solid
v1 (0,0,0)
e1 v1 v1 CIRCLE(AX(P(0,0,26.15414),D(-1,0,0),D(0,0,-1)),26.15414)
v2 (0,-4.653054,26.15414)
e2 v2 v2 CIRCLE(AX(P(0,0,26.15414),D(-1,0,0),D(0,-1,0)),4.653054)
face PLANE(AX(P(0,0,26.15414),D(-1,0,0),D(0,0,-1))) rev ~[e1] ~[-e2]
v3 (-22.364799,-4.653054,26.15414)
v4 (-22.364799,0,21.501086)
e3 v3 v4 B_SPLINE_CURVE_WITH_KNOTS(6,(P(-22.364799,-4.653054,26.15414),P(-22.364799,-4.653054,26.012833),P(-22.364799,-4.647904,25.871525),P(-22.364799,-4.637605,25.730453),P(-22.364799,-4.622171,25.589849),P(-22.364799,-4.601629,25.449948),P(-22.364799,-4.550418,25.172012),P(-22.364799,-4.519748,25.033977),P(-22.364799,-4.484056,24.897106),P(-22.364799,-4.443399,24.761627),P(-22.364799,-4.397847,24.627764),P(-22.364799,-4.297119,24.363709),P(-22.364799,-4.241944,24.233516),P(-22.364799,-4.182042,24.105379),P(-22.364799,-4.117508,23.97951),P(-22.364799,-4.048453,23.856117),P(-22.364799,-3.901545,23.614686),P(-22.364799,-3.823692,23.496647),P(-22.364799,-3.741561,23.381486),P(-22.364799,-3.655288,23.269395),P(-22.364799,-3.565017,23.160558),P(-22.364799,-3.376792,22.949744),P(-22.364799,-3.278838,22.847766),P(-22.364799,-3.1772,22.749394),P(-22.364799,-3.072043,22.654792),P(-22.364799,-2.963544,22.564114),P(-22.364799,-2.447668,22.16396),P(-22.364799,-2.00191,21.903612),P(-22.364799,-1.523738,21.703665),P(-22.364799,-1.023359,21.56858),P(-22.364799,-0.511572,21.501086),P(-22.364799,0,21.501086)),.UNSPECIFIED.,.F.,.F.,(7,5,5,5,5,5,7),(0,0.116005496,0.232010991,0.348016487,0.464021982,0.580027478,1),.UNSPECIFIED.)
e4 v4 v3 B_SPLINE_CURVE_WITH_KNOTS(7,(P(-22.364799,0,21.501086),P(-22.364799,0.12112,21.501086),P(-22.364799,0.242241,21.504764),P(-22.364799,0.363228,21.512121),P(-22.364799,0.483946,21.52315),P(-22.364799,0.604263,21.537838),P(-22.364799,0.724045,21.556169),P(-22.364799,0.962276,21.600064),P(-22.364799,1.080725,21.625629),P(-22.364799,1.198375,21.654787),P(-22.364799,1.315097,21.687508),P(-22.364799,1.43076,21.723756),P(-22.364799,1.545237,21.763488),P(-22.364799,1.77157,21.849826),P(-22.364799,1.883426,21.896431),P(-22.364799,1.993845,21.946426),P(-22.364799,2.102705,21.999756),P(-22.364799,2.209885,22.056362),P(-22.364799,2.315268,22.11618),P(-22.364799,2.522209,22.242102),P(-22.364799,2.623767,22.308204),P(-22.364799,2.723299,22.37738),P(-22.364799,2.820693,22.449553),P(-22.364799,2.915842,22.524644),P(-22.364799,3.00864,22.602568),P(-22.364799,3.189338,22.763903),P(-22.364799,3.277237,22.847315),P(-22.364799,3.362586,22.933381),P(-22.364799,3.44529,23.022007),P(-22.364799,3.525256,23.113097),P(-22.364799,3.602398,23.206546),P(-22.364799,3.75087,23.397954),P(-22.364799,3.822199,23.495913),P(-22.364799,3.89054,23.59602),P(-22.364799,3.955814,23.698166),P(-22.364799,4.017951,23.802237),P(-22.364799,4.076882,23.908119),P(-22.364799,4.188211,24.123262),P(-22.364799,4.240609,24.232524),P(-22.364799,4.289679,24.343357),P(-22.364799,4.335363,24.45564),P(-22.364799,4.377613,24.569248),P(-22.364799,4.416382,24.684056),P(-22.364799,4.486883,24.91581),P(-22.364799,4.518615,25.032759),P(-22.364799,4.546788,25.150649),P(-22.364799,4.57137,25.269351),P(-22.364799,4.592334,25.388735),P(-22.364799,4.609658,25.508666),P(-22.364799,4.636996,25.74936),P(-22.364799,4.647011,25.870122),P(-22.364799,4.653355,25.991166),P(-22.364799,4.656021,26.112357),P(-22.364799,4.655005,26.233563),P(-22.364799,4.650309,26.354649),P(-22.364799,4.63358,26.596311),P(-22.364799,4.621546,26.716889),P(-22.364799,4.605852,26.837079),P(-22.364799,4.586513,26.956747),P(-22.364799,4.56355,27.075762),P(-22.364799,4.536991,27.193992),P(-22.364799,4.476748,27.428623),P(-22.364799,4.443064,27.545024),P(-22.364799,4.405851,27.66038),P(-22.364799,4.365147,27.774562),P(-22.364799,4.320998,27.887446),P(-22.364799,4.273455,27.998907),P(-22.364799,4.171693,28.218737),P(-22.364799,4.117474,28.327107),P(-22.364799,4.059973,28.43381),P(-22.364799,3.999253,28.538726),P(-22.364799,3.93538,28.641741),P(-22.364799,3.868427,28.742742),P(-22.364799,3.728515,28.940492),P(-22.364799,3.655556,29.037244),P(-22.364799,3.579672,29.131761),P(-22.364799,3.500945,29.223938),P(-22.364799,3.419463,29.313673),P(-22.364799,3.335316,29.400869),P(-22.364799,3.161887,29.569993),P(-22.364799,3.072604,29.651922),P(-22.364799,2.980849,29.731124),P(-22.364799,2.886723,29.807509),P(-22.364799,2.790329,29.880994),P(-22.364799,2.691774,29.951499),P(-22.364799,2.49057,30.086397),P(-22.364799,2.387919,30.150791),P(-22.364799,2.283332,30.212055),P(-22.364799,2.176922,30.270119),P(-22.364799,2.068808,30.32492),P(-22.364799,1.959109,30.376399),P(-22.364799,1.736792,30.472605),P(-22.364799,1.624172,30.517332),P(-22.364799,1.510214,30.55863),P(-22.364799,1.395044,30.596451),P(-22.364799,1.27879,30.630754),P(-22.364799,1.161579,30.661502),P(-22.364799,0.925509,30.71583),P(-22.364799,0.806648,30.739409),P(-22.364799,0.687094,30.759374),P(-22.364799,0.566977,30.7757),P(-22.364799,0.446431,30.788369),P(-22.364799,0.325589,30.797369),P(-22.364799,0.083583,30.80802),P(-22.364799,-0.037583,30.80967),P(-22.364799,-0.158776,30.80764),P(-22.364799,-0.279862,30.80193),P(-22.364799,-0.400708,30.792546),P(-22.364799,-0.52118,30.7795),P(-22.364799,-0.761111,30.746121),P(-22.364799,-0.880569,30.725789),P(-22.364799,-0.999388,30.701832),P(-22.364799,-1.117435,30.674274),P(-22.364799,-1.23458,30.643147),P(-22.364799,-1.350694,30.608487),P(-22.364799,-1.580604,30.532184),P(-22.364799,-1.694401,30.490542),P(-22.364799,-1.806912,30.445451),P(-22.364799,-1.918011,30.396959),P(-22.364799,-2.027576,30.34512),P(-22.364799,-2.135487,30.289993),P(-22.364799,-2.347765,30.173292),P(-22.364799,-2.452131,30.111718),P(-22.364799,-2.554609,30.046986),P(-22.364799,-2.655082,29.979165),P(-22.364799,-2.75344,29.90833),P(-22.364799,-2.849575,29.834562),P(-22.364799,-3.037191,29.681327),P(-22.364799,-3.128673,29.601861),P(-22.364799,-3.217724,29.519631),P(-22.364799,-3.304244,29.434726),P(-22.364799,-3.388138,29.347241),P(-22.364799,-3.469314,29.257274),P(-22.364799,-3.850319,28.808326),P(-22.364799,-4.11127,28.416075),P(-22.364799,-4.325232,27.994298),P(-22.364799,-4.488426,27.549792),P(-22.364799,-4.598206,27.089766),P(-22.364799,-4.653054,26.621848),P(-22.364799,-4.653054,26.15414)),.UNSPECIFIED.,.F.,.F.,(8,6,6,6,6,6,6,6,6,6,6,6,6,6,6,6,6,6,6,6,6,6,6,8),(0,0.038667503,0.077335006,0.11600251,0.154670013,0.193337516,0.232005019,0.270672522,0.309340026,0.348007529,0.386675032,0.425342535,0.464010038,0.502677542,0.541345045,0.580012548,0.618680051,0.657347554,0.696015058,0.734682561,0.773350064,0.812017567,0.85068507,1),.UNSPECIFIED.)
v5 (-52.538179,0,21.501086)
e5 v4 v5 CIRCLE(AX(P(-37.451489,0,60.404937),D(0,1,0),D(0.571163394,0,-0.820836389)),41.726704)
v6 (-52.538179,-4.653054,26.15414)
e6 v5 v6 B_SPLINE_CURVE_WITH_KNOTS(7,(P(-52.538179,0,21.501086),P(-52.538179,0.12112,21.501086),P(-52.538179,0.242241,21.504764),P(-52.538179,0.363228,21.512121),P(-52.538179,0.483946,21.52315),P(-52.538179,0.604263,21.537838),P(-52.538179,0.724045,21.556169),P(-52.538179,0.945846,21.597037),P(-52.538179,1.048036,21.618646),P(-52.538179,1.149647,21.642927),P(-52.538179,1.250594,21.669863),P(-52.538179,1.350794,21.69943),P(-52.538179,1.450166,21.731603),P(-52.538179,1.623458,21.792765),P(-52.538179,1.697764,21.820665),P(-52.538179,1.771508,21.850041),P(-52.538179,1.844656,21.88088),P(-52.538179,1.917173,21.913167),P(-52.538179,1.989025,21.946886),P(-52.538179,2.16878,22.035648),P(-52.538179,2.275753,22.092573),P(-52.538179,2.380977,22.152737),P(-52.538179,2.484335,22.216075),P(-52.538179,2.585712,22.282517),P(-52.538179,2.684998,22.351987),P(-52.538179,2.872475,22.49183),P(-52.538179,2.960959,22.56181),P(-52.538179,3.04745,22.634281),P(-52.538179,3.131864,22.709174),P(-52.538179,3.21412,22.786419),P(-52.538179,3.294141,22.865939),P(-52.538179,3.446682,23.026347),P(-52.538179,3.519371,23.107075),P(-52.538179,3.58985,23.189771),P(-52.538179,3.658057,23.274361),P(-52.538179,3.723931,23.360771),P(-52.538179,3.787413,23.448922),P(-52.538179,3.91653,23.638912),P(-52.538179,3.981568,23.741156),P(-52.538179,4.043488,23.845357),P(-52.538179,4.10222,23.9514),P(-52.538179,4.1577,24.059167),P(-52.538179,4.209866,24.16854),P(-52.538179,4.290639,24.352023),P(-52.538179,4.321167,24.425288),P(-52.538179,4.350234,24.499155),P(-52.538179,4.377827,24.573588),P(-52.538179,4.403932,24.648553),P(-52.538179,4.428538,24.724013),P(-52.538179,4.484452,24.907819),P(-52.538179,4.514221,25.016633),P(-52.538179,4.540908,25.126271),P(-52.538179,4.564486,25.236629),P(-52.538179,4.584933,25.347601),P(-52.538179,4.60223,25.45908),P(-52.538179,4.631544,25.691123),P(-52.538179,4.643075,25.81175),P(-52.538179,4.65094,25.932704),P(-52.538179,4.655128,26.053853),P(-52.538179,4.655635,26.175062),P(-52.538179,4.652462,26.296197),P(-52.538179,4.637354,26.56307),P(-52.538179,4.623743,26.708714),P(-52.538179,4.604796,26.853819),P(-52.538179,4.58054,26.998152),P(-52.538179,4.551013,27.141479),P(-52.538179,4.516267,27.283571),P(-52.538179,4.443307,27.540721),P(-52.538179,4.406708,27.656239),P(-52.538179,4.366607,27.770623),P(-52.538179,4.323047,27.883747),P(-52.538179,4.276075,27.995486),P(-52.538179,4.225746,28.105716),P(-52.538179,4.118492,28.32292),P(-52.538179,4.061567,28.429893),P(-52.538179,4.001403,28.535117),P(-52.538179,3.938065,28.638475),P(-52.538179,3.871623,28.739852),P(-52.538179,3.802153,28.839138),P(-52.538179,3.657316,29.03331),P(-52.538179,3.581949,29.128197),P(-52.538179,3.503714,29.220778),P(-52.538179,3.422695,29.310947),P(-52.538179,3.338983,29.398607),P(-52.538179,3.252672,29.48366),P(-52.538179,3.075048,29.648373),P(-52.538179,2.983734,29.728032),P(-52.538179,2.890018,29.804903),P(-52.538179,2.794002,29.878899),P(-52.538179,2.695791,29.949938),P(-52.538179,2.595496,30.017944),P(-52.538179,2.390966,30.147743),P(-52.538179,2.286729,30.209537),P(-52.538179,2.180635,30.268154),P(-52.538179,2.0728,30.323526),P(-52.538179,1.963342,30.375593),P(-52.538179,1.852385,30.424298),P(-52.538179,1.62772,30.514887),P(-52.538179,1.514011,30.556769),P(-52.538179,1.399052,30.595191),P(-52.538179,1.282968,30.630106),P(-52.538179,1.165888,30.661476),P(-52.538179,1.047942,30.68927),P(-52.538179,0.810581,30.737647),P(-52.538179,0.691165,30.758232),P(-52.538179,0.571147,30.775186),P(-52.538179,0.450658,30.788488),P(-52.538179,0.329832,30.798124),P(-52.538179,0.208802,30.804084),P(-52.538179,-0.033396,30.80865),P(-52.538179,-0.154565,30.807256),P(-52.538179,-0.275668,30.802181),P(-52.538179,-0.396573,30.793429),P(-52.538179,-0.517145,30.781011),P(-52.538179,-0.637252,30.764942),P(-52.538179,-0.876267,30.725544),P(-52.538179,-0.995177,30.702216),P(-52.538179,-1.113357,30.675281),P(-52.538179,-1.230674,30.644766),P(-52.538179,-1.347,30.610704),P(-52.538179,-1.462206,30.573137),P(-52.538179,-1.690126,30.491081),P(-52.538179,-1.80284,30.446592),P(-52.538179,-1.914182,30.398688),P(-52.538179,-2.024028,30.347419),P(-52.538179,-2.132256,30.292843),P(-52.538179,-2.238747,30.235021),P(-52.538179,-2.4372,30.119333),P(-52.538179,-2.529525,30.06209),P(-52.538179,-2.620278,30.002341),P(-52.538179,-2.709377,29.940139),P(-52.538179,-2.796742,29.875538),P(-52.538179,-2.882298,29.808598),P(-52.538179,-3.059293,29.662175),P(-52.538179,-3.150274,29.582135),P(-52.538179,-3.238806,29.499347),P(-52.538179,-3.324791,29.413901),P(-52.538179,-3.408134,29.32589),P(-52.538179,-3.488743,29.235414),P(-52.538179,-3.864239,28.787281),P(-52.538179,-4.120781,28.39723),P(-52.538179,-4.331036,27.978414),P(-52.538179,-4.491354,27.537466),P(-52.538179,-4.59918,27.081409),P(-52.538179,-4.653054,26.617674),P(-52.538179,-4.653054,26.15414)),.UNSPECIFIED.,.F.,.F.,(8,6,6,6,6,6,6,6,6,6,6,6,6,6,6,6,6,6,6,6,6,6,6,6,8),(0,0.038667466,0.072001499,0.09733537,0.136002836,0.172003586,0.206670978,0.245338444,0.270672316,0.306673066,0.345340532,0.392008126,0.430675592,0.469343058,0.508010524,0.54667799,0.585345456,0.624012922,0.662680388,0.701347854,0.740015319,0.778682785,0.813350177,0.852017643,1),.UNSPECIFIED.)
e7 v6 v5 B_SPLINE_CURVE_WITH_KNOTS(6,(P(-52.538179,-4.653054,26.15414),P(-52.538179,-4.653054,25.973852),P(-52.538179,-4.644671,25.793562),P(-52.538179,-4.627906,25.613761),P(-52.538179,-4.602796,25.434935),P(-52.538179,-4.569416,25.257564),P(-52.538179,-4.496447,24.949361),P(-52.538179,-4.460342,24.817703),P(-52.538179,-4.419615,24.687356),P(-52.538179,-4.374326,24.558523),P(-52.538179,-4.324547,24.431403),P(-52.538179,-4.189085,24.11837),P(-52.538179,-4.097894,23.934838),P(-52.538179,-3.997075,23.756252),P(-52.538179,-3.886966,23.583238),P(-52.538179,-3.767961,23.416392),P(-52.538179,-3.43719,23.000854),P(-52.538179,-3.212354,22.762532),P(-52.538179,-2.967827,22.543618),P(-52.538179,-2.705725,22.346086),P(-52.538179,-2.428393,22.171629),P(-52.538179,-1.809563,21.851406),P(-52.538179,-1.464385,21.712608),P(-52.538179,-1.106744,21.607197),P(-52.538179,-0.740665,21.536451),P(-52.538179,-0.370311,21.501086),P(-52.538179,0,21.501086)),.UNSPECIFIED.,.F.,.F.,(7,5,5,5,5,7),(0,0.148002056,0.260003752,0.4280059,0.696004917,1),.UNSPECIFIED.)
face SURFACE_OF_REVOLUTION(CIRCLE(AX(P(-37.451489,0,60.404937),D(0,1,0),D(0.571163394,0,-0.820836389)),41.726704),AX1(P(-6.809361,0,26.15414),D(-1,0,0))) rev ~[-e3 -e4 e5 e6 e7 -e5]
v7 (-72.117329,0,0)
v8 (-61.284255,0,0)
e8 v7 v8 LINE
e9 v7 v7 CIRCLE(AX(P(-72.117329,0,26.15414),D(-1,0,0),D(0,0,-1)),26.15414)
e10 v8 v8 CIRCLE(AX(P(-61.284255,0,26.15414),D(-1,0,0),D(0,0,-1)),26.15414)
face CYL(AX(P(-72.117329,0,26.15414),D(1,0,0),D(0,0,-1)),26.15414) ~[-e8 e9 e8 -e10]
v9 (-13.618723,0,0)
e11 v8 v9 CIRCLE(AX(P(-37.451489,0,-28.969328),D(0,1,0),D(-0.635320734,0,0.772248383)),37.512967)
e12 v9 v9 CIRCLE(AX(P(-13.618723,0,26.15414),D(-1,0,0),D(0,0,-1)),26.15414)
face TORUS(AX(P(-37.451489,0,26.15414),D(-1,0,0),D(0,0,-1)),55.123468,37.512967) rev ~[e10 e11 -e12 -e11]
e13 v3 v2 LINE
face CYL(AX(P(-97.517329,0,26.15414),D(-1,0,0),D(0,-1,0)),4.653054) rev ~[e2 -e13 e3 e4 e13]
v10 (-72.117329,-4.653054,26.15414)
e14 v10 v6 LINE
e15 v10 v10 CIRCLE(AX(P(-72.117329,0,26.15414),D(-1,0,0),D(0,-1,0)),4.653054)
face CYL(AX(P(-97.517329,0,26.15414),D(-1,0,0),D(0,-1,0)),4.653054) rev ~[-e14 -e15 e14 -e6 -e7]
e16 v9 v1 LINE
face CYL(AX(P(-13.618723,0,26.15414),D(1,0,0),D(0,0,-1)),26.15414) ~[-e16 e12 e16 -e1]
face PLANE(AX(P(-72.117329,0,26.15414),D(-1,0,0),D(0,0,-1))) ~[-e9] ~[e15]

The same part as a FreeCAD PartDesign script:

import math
import FreeCAD as App
import Part
import Sketcher

V = App.Vector
Q = App.Units.Quantity

doc = App.newDocument("Part")
body = doc.addObject("PartDesign::Body", "Body")

# Sketch on XZ plane
sketch1 = body.newObject("Sketcher::SketchObject", "Sketch")
sketch1.AttachmentSupport = (doc.getObject("XZ_Plane"), [""])
sketch1.MapMode = "FlatFace"
sketch1.addGeometry([
    Part.LineSegment(V(-14, 0, 0), V(0, 0, 0)),  # 0
    Part.LineSegment(V(0, 0, 0), V(0, 26, 0)),  # 1
    Part.LineSegment(V(0, 26, 0), V(-14, 26, 0)),  # 2
    Part.ArcOfCircle(Part.Circle(V(-37, 60, 0), V(0, 0, 1), 42), math.radians(-125), math.radians(-55)),  # 3
    Part.LineSegment(V(-61, 26, 0), V(-72, 26, 0)),  # 4
    Part.LineSegment(V(-72, 26, 0), V(-72, 0, 0)),  # 5
    Part.LineSegment(V(-72, 0, 0), V(-61, 0, 0)),  # 6
    Part.ArcOfCircle(Part.Circle(V(-37, -29, 0), V(0, 0, 1), 38), math.radians(51), math.radians(129)),  # 7
], False)
sketch1.addGeometry(Part.LineSegment(V(0, 26, 0), V(-72, 26, 0)), True)  # axis
sketch1.addConstraint([
    Sketcher.Constraint("Coincident", 0, 2, 1, 1),
    Sketcher.Constraint("Coincident", 1, 2, 2, 1),
    Sketcher.Constraint("Coincident", 2, 2, 3, 2),
    Sketcher.Constraint("Coincident", 3, 1, 4, 1),
    Sketcher.Constraint("Coincident", 4, 2, 5, 1),
    Sketcher.Constraint("Coincident", 5, 2, 6, 1),
    Sketcher.Constraint("Coincident", 6, 2, 7, 2),
    Sketcher.Constraint("Coincident", 7, 1, 0, 1),
    Sketcher.Constraint("Horizontal", 0),
    Sketcher.Constraint("Vertical", 1),
    Sketcher.Constraint("Horizontal", 2),
    Sketcher.Constraint("Horizontal", 4),
    Sketcher.Constraint("Vertical", 5),
    Sketcher.Constraint("Horizontal", 6),
    Sketcher.Constraint("Horizontal", 8),
    Sketcher.Constraint("Coincident", 0, 2, -1, 1),
    Sketcher.Constraint("Coincident", 8, 1, 1, 2),
    Sketcher.Constraint("Coincident", 8, 2, 4, 2),
    Sketcher.Constraint("PointOnObject", 5, 2, -1),
    Sketcher.Constraint("Vertical", 3, 3, 7, 3),
    Sketcher.Constraint("Vertical", 3, 1, 6, 2),
    Sketcher.Constraint("Radius", 3, Q("41.726704 mm")),
    Sketcher.Constraint("Radius", 7, Q("37.512967 mm")),
    Sketcher.Constraint("DistanceX", 8, 2, 8, 1, Q("72.117329 mm")),
    Sketcher.Constraint("DistanceY", 1, 1, 1, 2, Q("26.15414 mm")),
    Sketcher.Constraint("DistanceX", 0, 1, 0, 2, Q("13.618723 mm")),
    Sketcher.Constraint("DistanceX", 4, 2, 4, 1, Q("10.833074 mm")),
])
revolution = body.newObject("PartDesign::Revolution", "Revolution")
revolution.Profile = sketch1
revolution.ReferenceAxis = (sketch1, ["Axis0"])
revolution.Angle = 360

# Sketch on YZ plane
sketch2 = body.newObject("Sketcher::SketchObject", "Sketch001")
sketch2.AttachmentSupport = (doc.getObject("YZ_Plane"), [""])
sketch2.MapMode = "FlatFace"
sketch2.AttachmentOffset = App.Placement(V(0, 0, -72.117329), App.Rotation())
sketch2.addGeometry(Part.Circle(V(0, 26.2, 0), V(0, 0, 1), 4.7), False)
sketch2.addConstraint([
    Sketcher.Constraint("PointOnObject", 0, 3, -2),
    Sketcher.Constraint("Diameter", 0, Q("9.306108 mm")),
    Sketcher.Constraint("DistanceY", -1, 1, 0, 3, Q("26.15414 mm")),
])
pad1 = body.newObject("PartDesign::Pad", "Pad")
pad1.Profile = sketch2
pad1.Length = Q("1 in")
pad1.Reversed = True

# Sketch on YZ plane
sketch3 = body.newObject("Sketcher::SketchObject", "Sketch002")
sketch3.AttachmentSupport = (doc.getObject("YZ_Plane"), [""])
sketch3.MapMode = "FlatFace"
sketch3.AttachmentOffset = App.Placement(V(0, 0, -97.517329), App.Rotation())
sketch3.addGeometry(Part.Circle(V(0, 26.2, 0), V(0, 0, 1), 4.7), False)
sketch3.addConstraint([
    Sketcher.Constraint("PointOnObject", 0, 3, -2),
    Sketcher.Constraint("Diameter", 0, Q("9.306108 mm")),
    Sketcher.Constraint("DistanceY", -1, 1, 0, 3, Q("26.15414 mm")),
])
pocket1 = body.newObject("PartDesign::Pocket", "Pocket")
pocket1.Profile = sketch3
pocket1.Type = "ThroughAll"
pocket1.Reversed = True

doc.recompute()
